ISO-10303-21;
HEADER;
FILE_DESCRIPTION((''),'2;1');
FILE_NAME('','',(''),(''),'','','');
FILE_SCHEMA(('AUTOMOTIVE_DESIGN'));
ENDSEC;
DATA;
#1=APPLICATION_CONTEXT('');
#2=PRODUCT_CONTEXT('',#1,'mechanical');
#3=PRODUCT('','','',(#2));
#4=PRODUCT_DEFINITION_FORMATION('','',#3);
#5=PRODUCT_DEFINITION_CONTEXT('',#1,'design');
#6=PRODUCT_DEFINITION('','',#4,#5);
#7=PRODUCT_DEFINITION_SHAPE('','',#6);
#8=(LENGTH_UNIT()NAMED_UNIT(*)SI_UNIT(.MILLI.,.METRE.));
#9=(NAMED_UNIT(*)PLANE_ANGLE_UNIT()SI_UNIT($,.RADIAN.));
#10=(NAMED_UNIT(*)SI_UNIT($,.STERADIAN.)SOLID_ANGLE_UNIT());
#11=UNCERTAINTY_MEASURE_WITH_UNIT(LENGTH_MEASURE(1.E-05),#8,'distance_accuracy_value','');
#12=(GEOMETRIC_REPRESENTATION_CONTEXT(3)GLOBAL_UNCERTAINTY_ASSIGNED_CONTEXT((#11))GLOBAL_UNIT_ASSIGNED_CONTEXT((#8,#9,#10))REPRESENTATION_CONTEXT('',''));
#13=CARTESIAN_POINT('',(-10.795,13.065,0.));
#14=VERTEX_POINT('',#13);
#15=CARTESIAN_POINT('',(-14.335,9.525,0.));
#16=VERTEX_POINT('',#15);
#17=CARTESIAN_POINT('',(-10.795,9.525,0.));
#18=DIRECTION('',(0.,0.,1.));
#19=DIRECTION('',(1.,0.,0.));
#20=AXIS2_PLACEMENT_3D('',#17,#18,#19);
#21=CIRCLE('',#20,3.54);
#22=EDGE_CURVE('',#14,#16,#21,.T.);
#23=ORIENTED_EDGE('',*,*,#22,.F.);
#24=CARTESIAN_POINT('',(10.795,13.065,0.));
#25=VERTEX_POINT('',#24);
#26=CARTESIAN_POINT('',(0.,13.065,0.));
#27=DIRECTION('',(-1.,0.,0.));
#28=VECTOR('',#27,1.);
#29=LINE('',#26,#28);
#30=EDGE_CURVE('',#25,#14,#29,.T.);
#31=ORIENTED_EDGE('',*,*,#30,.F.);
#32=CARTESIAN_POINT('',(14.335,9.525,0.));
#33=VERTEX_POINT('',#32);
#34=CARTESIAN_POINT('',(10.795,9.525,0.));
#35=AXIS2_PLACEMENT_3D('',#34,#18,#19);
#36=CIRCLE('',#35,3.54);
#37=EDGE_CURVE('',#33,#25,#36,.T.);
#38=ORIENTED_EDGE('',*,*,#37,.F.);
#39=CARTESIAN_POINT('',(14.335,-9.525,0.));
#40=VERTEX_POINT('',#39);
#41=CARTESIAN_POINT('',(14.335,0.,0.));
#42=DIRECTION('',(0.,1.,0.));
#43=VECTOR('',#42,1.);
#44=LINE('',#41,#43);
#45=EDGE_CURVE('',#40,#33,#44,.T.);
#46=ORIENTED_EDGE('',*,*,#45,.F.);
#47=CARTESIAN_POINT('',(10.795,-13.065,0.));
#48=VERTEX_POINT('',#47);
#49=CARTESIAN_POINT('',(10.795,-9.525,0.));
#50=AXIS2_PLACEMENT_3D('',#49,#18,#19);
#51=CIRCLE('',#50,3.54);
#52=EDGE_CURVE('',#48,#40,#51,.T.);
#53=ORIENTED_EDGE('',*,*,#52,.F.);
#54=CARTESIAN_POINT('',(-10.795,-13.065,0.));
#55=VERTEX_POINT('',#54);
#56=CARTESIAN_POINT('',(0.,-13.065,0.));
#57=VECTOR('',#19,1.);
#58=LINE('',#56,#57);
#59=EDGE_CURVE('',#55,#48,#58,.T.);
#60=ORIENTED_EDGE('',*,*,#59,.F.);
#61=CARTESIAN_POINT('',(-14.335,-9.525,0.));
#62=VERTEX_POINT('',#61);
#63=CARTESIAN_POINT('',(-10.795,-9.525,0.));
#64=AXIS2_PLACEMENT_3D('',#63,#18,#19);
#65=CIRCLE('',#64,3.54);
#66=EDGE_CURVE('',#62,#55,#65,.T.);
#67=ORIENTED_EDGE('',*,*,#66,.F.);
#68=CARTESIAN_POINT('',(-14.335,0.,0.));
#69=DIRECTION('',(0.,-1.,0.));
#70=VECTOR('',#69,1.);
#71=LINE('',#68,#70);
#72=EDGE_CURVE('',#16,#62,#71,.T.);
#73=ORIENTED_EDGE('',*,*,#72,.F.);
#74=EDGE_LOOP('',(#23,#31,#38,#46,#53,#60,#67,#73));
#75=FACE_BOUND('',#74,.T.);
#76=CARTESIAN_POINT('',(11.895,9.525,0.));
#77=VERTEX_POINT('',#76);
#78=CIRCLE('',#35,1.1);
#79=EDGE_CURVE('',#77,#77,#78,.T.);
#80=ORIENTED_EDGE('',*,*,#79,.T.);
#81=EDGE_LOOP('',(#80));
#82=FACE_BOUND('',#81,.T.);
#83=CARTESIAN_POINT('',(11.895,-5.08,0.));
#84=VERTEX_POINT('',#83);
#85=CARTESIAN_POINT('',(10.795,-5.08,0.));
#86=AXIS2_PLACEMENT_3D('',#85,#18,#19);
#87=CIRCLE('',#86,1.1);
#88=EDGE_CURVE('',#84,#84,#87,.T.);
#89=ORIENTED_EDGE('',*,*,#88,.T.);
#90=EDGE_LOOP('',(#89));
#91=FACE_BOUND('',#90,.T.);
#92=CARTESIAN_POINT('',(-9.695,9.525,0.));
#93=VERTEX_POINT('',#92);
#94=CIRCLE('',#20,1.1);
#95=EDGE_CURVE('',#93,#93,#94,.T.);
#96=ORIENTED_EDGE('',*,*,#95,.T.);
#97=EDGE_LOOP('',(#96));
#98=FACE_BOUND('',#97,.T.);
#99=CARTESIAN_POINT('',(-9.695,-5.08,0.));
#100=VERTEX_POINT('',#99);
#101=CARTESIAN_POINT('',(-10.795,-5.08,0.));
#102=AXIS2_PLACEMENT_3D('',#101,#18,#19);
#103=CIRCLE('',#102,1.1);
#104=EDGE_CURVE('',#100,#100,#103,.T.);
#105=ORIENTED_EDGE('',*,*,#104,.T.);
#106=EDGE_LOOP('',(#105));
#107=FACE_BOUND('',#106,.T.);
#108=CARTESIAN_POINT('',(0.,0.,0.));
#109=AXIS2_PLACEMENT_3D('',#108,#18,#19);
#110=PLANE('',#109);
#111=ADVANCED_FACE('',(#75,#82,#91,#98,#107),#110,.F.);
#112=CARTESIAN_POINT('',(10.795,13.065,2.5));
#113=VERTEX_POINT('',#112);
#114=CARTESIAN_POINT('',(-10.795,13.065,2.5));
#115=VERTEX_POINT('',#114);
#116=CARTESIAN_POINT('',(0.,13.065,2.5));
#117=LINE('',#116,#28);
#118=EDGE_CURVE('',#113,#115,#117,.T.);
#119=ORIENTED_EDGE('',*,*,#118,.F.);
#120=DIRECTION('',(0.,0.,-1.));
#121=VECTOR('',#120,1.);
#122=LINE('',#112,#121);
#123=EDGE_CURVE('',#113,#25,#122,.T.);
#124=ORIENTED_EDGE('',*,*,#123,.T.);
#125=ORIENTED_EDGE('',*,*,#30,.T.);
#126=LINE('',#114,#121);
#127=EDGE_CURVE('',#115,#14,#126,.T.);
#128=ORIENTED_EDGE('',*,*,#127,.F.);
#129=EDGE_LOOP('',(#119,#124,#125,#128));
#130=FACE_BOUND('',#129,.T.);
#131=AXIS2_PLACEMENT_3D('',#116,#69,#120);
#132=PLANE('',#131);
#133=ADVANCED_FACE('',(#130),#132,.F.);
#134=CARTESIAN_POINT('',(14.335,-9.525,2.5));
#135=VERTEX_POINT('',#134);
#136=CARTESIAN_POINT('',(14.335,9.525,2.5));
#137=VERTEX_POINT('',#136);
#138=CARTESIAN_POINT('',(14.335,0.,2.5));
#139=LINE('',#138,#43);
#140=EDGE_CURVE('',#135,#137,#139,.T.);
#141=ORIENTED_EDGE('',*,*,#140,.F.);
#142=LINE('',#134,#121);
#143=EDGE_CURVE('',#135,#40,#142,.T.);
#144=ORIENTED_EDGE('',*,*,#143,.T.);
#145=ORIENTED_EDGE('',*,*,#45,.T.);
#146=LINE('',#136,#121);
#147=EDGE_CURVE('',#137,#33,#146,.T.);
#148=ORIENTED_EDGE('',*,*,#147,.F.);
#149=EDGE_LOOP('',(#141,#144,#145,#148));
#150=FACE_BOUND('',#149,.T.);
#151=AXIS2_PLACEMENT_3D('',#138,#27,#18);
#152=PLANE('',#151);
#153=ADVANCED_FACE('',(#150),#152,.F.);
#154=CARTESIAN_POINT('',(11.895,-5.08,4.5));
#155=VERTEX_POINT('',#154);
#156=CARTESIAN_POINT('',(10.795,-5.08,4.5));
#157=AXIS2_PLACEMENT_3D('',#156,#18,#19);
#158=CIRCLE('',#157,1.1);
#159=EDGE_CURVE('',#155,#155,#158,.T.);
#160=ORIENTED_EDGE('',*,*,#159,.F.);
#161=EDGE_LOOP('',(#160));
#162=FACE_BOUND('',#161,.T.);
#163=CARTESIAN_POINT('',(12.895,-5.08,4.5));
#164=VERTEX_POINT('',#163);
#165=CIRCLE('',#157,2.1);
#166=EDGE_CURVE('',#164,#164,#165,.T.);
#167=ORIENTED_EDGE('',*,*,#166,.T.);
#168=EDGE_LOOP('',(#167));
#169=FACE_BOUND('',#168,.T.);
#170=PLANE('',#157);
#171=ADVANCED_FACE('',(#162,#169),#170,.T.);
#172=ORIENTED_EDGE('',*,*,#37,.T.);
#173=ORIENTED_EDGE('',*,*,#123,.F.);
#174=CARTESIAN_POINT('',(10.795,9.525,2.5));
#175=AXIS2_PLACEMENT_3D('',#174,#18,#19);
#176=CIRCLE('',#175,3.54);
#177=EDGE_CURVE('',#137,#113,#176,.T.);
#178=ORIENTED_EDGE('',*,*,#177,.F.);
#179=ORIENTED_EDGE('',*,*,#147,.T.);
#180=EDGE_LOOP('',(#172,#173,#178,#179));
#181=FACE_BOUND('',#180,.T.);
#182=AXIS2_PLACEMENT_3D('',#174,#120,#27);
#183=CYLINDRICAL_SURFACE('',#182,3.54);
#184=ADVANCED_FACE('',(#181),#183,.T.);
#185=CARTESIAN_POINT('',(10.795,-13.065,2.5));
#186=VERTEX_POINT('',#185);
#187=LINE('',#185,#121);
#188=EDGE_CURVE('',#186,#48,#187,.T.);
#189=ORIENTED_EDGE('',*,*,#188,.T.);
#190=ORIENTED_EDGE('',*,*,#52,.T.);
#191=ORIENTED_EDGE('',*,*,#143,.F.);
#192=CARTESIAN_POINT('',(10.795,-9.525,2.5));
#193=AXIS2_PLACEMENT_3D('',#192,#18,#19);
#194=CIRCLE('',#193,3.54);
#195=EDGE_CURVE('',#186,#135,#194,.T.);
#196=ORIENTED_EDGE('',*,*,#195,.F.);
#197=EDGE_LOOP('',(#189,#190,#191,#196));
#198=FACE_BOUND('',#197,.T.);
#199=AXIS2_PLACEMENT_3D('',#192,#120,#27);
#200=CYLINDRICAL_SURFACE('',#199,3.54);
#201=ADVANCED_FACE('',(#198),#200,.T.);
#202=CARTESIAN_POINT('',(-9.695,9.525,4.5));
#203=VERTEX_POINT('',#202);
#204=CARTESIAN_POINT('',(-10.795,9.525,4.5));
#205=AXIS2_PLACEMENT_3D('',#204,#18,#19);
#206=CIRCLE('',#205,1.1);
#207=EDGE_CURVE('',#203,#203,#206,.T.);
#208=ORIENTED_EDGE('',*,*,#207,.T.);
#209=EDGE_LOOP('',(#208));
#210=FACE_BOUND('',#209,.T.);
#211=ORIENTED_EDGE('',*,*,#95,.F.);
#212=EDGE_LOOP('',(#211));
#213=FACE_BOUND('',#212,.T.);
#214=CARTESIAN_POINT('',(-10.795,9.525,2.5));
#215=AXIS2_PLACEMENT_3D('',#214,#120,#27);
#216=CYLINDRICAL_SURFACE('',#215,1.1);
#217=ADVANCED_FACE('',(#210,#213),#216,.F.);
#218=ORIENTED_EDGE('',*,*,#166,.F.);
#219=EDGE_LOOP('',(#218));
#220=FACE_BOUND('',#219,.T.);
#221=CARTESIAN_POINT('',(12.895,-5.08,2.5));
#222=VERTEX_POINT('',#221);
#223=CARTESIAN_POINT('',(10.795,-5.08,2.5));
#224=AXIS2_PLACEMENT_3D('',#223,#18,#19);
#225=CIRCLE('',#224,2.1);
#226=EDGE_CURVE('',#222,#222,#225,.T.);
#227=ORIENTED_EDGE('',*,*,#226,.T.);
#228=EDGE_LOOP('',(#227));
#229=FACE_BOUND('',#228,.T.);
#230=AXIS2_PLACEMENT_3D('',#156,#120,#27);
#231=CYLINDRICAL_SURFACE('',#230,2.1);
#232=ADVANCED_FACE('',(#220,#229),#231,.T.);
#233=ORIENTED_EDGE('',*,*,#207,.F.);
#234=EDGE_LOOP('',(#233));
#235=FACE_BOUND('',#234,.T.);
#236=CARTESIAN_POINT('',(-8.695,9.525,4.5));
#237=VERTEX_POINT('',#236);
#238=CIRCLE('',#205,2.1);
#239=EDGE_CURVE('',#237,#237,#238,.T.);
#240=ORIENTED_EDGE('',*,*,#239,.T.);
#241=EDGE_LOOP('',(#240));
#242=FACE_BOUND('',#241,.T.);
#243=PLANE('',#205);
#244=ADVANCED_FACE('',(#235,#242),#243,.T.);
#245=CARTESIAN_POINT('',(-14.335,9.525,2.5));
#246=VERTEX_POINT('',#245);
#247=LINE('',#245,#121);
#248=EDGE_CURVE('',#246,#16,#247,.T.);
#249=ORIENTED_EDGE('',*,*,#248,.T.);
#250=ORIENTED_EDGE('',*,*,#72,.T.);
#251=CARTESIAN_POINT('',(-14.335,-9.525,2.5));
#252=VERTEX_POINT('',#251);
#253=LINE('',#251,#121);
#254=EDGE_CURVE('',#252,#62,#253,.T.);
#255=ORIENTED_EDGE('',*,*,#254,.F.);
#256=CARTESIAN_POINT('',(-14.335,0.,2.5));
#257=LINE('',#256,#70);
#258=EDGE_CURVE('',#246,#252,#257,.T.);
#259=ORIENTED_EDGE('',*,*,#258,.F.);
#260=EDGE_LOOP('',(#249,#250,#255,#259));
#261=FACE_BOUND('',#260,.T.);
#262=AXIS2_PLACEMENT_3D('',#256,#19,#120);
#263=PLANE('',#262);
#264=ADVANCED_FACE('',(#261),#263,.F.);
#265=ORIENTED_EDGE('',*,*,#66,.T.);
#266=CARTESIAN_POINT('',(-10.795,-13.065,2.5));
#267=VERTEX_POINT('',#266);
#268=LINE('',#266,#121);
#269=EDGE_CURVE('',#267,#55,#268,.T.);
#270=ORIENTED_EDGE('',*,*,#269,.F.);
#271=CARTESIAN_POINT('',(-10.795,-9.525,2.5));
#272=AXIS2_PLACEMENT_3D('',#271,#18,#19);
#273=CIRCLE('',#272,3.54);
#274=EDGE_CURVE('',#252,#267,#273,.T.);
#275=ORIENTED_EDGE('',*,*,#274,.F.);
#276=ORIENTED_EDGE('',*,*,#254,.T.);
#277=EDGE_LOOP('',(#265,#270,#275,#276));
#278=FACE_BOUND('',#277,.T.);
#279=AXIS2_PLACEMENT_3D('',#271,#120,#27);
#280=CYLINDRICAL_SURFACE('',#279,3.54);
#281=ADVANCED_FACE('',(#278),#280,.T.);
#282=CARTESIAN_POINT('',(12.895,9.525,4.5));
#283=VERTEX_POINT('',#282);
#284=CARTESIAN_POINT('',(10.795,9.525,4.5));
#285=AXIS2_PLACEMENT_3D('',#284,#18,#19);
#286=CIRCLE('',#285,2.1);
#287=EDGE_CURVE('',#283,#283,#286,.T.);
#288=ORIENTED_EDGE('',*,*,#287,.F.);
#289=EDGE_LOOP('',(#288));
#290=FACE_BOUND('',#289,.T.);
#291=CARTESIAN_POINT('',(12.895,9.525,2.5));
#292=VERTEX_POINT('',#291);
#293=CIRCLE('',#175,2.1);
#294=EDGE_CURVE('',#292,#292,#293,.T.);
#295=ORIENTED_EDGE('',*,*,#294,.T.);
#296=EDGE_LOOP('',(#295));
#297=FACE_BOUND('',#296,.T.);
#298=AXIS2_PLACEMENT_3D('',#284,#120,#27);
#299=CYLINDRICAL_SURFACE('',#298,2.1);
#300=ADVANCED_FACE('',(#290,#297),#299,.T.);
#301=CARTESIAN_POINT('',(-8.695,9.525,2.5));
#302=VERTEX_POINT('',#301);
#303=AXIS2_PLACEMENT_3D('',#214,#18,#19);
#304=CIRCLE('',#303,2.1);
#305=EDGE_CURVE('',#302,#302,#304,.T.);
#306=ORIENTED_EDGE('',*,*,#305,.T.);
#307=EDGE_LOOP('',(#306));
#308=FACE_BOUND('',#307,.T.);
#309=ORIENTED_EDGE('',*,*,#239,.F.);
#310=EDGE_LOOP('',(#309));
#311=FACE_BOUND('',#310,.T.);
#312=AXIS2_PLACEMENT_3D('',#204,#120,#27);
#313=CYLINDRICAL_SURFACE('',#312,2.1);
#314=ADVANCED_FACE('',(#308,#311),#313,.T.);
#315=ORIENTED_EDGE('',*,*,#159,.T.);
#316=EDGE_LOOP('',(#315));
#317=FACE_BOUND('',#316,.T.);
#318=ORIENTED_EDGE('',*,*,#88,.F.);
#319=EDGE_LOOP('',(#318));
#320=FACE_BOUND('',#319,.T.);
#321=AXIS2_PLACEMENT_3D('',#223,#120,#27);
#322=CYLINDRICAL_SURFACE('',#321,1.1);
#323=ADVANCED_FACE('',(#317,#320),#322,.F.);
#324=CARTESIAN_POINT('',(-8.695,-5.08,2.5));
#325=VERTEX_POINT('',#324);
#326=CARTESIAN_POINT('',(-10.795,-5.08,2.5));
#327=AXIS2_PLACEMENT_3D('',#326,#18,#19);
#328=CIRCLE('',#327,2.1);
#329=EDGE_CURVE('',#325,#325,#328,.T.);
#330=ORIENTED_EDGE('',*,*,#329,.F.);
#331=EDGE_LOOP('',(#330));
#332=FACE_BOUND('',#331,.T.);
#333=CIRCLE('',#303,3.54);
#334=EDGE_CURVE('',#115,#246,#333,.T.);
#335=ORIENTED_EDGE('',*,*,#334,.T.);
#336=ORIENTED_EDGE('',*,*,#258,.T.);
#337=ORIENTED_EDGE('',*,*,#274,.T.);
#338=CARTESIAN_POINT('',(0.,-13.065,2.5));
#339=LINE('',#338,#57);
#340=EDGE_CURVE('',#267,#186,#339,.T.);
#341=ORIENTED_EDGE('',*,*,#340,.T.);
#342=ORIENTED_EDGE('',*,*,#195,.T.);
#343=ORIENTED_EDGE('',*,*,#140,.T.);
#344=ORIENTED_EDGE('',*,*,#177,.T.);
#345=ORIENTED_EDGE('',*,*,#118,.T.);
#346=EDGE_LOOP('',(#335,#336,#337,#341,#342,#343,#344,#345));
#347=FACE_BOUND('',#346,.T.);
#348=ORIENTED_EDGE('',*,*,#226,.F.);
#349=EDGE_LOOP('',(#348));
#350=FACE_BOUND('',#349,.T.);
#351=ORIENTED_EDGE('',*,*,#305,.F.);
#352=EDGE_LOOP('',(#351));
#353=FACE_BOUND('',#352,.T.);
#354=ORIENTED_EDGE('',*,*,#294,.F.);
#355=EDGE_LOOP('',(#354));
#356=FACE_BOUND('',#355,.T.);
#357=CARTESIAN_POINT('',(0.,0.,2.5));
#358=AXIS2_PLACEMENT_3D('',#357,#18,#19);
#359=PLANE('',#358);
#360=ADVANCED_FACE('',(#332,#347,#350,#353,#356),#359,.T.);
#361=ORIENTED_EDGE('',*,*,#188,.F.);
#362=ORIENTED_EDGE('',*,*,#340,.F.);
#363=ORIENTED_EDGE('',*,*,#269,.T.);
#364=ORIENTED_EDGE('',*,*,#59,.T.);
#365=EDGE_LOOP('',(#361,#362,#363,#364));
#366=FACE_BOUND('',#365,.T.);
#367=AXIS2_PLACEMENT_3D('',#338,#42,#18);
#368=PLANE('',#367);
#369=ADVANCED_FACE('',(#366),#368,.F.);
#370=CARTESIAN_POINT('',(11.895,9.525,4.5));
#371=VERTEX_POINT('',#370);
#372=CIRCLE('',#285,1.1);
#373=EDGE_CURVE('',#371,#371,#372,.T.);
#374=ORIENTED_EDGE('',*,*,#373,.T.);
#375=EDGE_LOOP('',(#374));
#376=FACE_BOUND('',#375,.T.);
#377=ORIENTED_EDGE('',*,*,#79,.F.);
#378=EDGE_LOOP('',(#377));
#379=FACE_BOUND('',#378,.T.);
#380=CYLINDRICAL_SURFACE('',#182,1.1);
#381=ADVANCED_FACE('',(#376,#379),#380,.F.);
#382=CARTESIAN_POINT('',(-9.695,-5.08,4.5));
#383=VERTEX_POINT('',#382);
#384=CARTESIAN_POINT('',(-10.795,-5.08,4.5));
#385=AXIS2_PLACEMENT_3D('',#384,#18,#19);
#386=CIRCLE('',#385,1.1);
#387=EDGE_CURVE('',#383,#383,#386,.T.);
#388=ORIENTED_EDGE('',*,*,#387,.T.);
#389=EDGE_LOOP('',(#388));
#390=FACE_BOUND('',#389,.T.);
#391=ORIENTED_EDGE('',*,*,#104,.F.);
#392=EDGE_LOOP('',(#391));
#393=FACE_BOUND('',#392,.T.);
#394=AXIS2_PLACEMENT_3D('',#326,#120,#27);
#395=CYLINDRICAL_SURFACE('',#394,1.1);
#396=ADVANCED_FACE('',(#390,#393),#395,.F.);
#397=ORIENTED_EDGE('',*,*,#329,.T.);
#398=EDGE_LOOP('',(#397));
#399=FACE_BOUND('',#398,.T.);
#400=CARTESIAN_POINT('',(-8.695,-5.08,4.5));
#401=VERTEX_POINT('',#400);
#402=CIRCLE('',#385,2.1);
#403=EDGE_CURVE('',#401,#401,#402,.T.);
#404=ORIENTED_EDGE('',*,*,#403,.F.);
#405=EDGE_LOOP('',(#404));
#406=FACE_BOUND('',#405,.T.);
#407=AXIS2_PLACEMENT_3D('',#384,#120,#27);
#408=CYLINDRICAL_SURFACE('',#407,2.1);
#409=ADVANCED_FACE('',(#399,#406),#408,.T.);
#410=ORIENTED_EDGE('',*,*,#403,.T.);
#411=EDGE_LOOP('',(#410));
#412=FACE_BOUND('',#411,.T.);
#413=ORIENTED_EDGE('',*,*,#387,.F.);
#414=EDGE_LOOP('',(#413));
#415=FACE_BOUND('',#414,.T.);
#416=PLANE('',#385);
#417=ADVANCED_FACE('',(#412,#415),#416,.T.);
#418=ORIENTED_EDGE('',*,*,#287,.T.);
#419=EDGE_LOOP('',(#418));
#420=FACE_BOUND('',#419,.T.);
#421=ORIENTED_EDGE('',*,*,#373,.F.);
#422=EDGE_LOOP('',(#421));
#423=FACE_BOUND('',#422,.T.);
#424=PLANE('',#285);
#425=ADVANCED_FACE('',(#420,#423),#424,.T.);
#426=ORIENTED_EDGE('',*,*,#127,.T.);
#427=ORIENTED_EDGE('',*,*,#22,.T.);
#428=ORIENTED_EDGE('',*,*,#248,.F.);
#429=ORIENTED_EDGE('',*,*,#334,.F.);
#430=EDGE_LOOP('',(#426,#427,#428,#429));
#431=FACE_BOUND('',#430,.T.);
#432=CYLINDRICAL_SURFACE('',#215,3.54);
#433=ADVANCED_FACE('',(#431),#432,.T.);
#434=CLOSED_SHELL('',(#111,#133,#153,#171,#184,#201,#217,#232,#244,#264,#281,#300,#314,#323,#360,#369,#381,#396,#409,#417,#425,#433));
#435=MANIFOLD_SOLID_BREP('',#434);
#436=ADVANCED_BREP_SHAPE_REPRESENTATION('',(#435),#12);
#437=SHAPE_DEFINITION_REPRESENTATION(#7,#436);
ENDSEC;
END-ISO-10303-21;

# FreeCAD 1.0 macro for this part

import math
import FreeCAD as App
import Part
import Sketcher

V = App.Vector

doc = App.newDocument("Part")
params = doc.addObject("Spreadsheet::Sheet", "Params")
for row, (alias, value) in enumerate([
    ("sketch1_diameter", "2.2 mm"),
    ("sketch1_radius", "3.54 mm"),
    ("sketch1_width", "21.59 mm"),
    ("sketch1_height", "19.05 mm"),
    ("pad1_length", "2.5 mm"),
    ("sketch2_diameter", "4.2 mm"),
    ("sketch2_diameter2", "2.2 mm"),
    ("pad2_length", "2 mm"),
], start=1):
    params.set(f"A{row}", alias)
    params.set(f"B{row}", "=" + value)
    params.setAlias(f"B{row}", alias)

body = doc.addObject("PartDesign::Body", "Body")

sketch1 = body.newObject("Sketcher::SketchObject", "Sketch")
sketch1.AttachmentSupport = (doc.getObject("XY_Plane"), [""])
sketch1.MapMode = "FlatFace"
sketch1.addGeometry([
    Part.LineSegment(V(10.795, 13.065, 0), V(-10.795, 13.065, 0)),
    Part.ArcOfCircle(Part.Circle(V(-10.795, 9.525, 0), V(0, 0, 1), 3.54), math.radians(90), math.radians(180)),
    Part.LineSegment(V(-14.335, 9.525, 0), V(-14.335, -9.525, 0)),
    Part.ArcOfCircle(Part.Circle(V(-10.795, -9.525, 0), V(0, 0, 1), 3.54), math.radians(-180), math.radians(-90)),
    Part.LineSegment(V(-10.795, -13.065, 0), V(10.795, -13.065, 0)),
    Part.ArcOfCircle(Part.Circle(V(10.795, -9.525, 0), V(0, 0, 1), 3.54), math.radians(-90), math.radians(0)),
    Part.LineSegment(V(14.335, -9.525, 0), V(14.335, 9.525, 0)),
    Part.ArcOfCircle(Part.Circle(V(10.795, 9.525, 0), V(0, 0, 1), 3.54), math.radians(0), math.radians(90)),
    Part.Circle(V(-10.795, -5.08, 0), V(0, 0, 1), 1.1),
    Part.Circle(V(10.795, -5.08, 0), V(0, 0, 1), 1.1),
    Part.Circle(V(-10.795, 9.525, 0), V(0, 0, 1), 1.1),
    Part.Circle(V(10.795, 9.525, 0), V(0, 0, 1), 1.1),
], False)
sketch1.addConstraint([
    Sketcher.Constraint("Tangent", 0, 2, 1, 1),
    Sketcher.Constraint("Tangent", 1, 2, 2, 1),
    Sketcher.Constraint("Tangent", 2, 2, 3, 1),
    Sketcher.Constraint("Tangent", 3, 2, 4, 1),
    Sketcher.Constraint("Tangent", 4, 2, 5, 1),
    Sketcher.Constraint("Tangent", 5, 2, 6, 1),
    Sketcher.Constraint("Tangent", 6, 2, 7, 1),
    Sketcher.Constraint("Tangent", 7, 2, 0, 1),
    Sketcher.Constraint("Horizontal", 0),
    Sketcher.Constraint("Vertical", 2),
    Sketcher.Constraint("Horizontal", 4),
    Sketcher.Constraint("Vertical", 6),
    Sketcher.Constraint("Coincident", 10, 3, 1, 3),
    Sketcher.Constraint("Coincident", 11, 3, 7, 3),
    Sketcher.Constraint("Equal", 1, 3),
    Sketcher.Constraint("Equal", 3, 5),
    Sketcher.Constraint("Equal", 5, 7),
    Sketcher.Constraint("Equal", 8, 9),
    Sketcher.Constraint("Equal", 9, 10),
    Sketcher.Constraint("Equal", 10, 11),
    Sketcher.Constraint("Symmetric", 1, 3, 5, 3, -1, 1),
    Sketcher.Constraint("Symmetric", 8, 3, 9, 3, -2),
    Sketcher.Constraint("Vertical", 3, 3, 8, 3),
    Sketcher.Constraint("Diameter", 8, 2.2),
    Sketcher.Constraint("Radius", 1, 3.54),
    Sketcher.Constraint("DistanceX", 0, 2, 0, 1, 21.59),
    Sketcher.Constraint("DistanceY", 2, 2, 2, 1, 19.05),
    Sketcher.Constraint("DistanceY", 8, 3, -1, 1, 5.08),
])
sketch1.setExpression("Constraints[23]", "Params.sketch1_diameter")
sketch1.setExpression("Constraints[24]", "Params.sketch1_radius")
sketch1.setExpression("Constraints[25]", "Params.sketch1_width")
sketch1.setExpression("Constraints[26]", "Params.sketch1_height")
pad1 = body.newObject("PartDesign::Pad", "Pad")
pad1.Profile = sketch1
pad1.setExpression("Length", "Params.pad1_length")

sketch2 = body.newObject("Sketcher::SketchObject", "Sketch001")
sketch2.AttachmentSupport = (doc.getObject("XY_Plane"), [""])
sketch2.MapMode = "FlatFace"
sketch2.AttachmentOffset = App.Placement(V(0, 0, 2.5), App.Rotation())
sketch2.addGeometry([
    Part.Circle(V(-10.795, 9.525, 0), V(0, 0, 1), 2.1),
    Part.Circle(V(-10.795, 9.525, 0), V(0, 0, 1), 1.1),
    Part.Circle(V(10.795, 9.525, 0), V(0, 0, 1), 2.1),
    Part.Circle(V(10.795, 9.525, 0), V(0, 0, 1), 1.1),
    Part.Circle(V(10.795, -5.08, 0), V(0, 0, 1), 2.1),
    Part.Circle(V(10.795, -5.08, 0), V(0, 0, 1), 1.1),
    Part.Circle(V(-10.795, -5.08, 0), V(0, 0, 1), 2.1),
    Part.Circle(V(-10.795, -5.08, 0), V(0, 0, 1), 1.1),
], False)
sketch2.addConstraint([
    Sketcher.Constraint("Coincident", 1, 3, 0, 3),
    Sketcher.Constraint("Coincident", 3, 3, 2, 3),
    Sketcher.Constraint("Coincident", 5, 3, 4, 3),
    Sketcher.Constraint("Coincident", 7, 3, 6, 3),
    Sketcher.Constraint("Equal", 0, 2),
    Sketcher.Constraint("Equal", 1, 3),
    Sketcher.Constraint("Equal", 2, 4),
    Sketcher.Constraint("Equal", 3, 5),
    Sketcher.Constraint("Equal", 4, 6),
    Sketcher.Constraint("Equal", 5, 7),
    Sketcher.Constraint("Symmetric", 0, 3, 2, 3, -2),
    Sketcher.Constraint("Symmetric", 4, 3, 6, 3, -2),
    Sketcher.Constraint("Vertical", 3, 3, 4, 3),
    Sketcher.Constraint("Diameter", 0, 4.2),
    Sketcher.Constraint("Diameter", 1, 2.2),
    Sketcher.Constraint("DistanceY", 4, 3, -1, 1, 5.08),
    Sketcher.Constraint("DistanceX", 0, 3, 2, 3, 21.59),
    Sketcher.Constraint("DistanceY", -1, 1, 0, 3, 9.525),
])
sketch2.setExpression("Constraints[13]", "Params.sketch2_diameter")
sketch2.setExpression("Constraints[14]", "Params.sketch2_diameter2")
pad2 = body.newObject("PartDesign::Pad", "Pad001")
pad2.Profile = sketch2
pad2.setExpression("Length", "Params.pad2_length")

doc.recompute()
